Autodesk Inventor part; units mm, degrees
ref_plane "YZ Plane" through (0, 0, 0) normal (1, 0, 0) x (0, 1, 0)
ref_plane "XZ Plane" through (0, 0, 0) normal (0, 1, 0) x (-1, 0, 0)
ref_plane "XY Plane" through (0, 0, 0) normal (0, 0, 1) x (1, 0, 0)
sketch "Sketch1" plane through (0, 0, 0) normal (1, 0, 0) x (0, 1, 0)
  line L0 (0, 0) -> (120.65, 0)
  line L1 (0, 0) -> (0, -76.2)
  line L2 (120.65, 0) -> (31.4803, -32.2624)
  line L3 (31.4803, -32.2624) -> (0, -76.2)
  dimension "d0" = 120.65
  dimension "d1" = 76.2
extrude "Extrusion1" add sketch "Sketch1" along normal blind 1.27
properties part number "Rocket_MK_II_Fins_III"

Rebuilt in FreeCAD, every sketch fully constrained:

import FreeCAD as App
import Part
import Sketcher
from FreeCAD import Vector
Q = App.Units.Quantity

doc = App.newDocument("Part")
body = doc.addObject("PartDesign::Body", "Body")

# Sketch on YZ plane
sketch1 = body.newObject("Sketcher::SketchObject", "Sketch")
sketch1.AttachmentSupport = (doc.getObject("YZ_Plane"), [""])
sketch1.MapMode = "FlatFace"
sketch1.addGeometry(Part.LineSegment(Vector(120.65, 0, 0), Vector(0, 0, 0)), False)
sketch1.addGeometry(Part.LineSegment(Vector(0, 0, 0), Vector(0, -76.2, 0)), False)
sketch1.addGeometry(Part.LineSegment(Vector(0, -76.2, 0), Vector(31.4803, -32.2624, 0)), False)
sketch1.addGeometry(Part.LineSegment(Vector(31.4803, -32.2624, 0), Vector(120.65, 0, 0)), False)
sketch1.addConstraint(Sketcher.Constraint("Coincident", 0, 2, 1, 1))
sketch1.addConstraint(Sketcher.Constraint("Coincident", 1, 2, 2, 1))
sketch1.addConstraint(Sketcher.Constraint("Coincident", 2, 2, 3, 1))
sketch1.addConstraint(Sketcher.Constraint("Coincident", 3, 2, 0, 1))
sketch1.addConstraint(Sketcher.Constraint("Horizontal", 0))
sketch1.addConstraint(Sketcher.Constraint("Vertical", 1))
sketch1.addConstraint(Sketcher.Constraint("Coincident", 0, 2, -1, 1))
sketch1.addConstraint(Sketcher.Constraint("DistanceY", 1, 2, 1, 1, Q("3 in")))
sketch1.addConstraint(Sketcher.Constraint("DistanceX", 0, 2, 0, 1, Q("4.75 in")))
sketch1.addConstraint(Sketcher.Constraint("Angle", 2, Q("54.3793 deg")))
sketch1.addConstraint(Sketcher.Constraint("Angle", 3, Q("19.8906 deg")))
pad1 = body.newObject("PartDesign::Pad", "Pad")
pad1.Profile = sketch1
pad1.Length = Q("0.05 in")

doc.recompute()
